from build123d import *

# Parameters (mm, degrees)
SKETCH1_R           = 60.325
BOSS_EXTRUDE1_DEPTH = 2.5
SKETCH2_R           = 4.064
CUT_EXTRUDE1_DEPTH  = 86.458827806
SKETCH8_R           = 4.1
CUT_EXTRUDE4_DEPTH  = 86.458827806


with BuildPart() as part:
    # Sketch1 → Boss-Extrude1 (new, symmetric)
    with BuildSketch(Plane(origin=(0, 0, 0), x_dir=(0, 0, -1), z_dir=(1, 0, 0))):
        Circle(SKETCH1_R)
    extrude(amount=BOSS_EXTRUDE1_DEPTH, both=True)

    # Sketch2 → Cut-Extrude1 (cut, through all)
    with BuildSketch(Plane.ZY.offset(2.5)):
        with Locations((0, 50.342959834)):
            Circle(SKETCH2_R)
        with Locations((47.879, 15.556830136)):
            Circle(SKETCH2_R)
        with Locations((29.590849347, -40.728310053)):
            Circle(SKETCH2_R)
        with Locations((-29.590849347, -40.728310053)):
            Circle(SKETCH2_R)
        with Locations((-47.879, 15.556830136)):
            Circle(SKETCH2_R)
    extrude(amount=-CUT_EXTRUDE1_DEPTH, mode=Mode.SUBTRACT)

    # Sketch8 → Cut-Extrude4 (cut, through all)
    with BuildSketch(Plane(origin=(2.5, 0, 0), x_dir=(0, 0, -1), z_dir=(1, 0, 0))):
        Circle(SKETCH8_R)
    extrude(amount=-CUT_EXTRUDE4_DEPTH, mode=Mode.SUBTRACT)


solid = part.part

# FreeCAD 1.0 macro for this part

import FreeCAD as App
import Part
import Sketcher

V = App.Vector
Q = App.Units.Quantity

doc = App.newDocument("Part")
body = doc.addObject("PartDesign::Body", "Body")

# Sketch on YZ plane
sketch1 = body.newObject("Sketcher::SketchObject", "Sketch")
sketch1.AttachmentSupport = (doc.getObject("YZ_Plane"), [""])
sketch1.MapMode = "FlatFace"
sketch1.addGeometry(Part.Circle(V(0, 0, 0), V(0, 0, 1), 60), False)
sketch1.addConstraint(Sketcher.Constraint("Coincident", 0, 3, -1, 1))
sketch1.addConstraint(Sketcher.Constraint("Diameter", 0, Q("120.65 mm")))
pad1 = body.newObject("PartDesign::Pad", "Pad")
pad1.Profile = sketch1
pad1.Length = 5
pad1.Midplane = True

# Sketch on YZ plane
sketch2 = body.newObject("Sketcher::SketchObject", "Sketch001")
sketch2.AttachmentSupport = (doc.getObject("YZ_Plane"), [""])
sketch2.MapMode = "FlatFace"
sketch2.AttachmentOffset = App.Placement(V(0, 0, -2.5), App.Rotation())
sketch2.addGeometry(Part.Circle(V(50.3, 0, 0), V(0, 0, 1), 4.1), False)
sketch2.addGeometry(Part.Circle(V(15.6, 47.9, 0), V(0, 0, 1), 4.1), False)
sketch2.addGeometry(Part.Circle(V(-40.7, 29.6, 0), V(0, 0, 1), 4.1), False)
sketch2.addGeometry(Part.Circle(V(-40.7, -29.6, 0), V(0, 0, 1), 4.1), False)
sketch2.addGeometry(Part.Circle(V(15.6, -47.9, 0), V(0, 0, 1), 4.1), False)
sketch2.addConstraint(Sketcher.Constraint("Equal", 0, 1))
sketch2.addConstraint(Sketcher.Constraint("Equal", 1, 2))
sketch2.addConstraint(Sketcher.Constraint("Equal", 2, 3))
sketch2.addConstraint(Sketcher.Constraint("Equal", 3, 4))
sketch2.addConstraint(Sketcher.Constraint("Symmetric", 2, 3, 3, 3, -1))
sketch2.addConstraint(Sketcher.Constraint("Symmetric", 1, 3, 4, 3, -1))
sketch2.addConstraint(Sketcher.Constraint("PointOnObject", 0, 3, -1))
sketch2.addConstraint(Sketcher.Constraint("Diameter", 0, Q("8.128 mm")))
sketch2.addConstraint(Sketcher.Constraint("DistanceY", -1, 1, 1, 3, Q("47.879 mm")))
sketch2.addConstraint(Sketcher.Constraint("DistanceY", 3, 3, 2, 3, Q("59.181699 mm")))
sketch2.addConstraint(Sketcher.Constraint("DistanceX", -1, 1, 0, 3, Q("50.34296 mm")))
sketch2.addConstraint(Sketcher.Constraint("DistanceX", -1, 1, 1, 3, Q("15.55683 mm")))
sketch2.addConstraint(Sketcher.Constraint("DistanceX", 2, 3, -1, 1, Q("40.72831 mm")))
pocket1 = body.newObject("PartDesign::Pocket", "Pocket")
pocket1.Profile = sketch2
pocket1.Type = "ThroughAll"
pocket1.Reversed = True

# Sketch on YZ plane
sketch3 = body.newObject("Sketcher::SketchObject", "Sketch002")
sketch3.AttachmentSupport = (doc.getObject("YZ_Plane"), [""])
sketch3.MapMode = "FlatFace"
sketch3.AttachmentOffset = App.Placement(V(0, 0, 2.5), App.Rotation())
sketch3.addGeometry(Part.Circle(V(0, 0, 0), V(0, 0, 1), 4.1), False)
sketch3.addConstraint(Sketcher.Constraint("Coincident", 0, 3, -1, 1))
sketch3.addConstraint(Sketcher.Constraint("Diameter", 0, Q("8.2 mm")))
pocket2 = body.newObject("PartDesign::Pocket", "Pocket001")
pocket2.Profile = sketch3
pocket2.Type = "ThroughAll"

doc.recompute()
